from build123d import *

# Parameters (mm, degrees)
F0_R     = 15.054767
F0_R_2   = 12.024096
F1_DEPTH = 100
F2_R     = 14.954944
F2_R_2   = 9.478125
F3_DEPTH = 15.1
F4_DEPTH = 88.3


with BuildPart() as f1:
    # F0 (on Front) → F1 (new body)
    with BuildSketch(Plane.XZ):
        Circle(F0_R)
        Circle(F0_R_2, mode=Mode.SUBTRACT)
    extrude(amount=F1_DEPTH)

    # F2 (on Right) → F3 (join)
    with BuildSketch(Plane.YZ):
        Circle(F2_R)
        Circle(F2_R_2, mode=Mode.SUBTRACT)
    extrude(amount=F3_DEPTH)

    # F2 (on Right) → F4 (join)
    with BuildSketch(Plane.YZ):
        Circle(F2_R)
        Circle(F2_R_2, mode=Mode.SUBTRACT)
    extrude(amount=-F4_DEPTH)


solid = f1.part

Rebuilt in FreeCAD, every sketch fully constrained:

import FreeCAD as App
import Part
import Sketcher

V = App.Vector

doc = App.newDocument("Part")
params = doc.addObject("Spreadsheet::Sheet", "Params")
for row, (alias, value) in enumerate([
    ("pad1_length", "100 mm"),
    ("pad2_length", "15.1 mm"),
    ("pad3_length", "88.3 mm"),
], start=1):
    params.set(f"A{row}", alias)
    params.set(f"B{row}", "=" + value)
    params.setAlias(f"B{row}", alias)

body = doc.addObject("PartDesign::Body", "Body")

# Sketch on XZ plane
sketch1 = doc.addObject("Sketcher::SketchObject", "Sketch")
body.addObject(sketch1)
sketch1.AttachmentSupport = (doc.XZ_Plane, [""])
sketch1.MapMode = "FlatFace"
sketch1.addGeometry(Part.Circle(V(0, 0, 0), V(0, 0, 1), 15), False)
sketch1.addGeometry(Part.Circle(V(0, 0, 0), V(0, 0, 1), 12), False)
sketch1.addConstraint(Sketcher.Constraint("Coincident", 0, 3, -1, 1))
sketch1.addConstraint(Sketcher.Constraint("Coincident", 1, 3, -1, 1))
sketch1.addConstraint(Sketcher.Constraint("Diameter", 1, 24.048192))
sketch1.addConstraint(Sketcher.Constraint("Diameter", 0, 30.109534))
pad1 = doc.addObject("PartDesign::Pad", "Pad")
body.addObject(pad1)
pad1.Profile = sketch1
pad1.setExpression("Length", "Params.pad1_length")

# Sketch on YZ plane
sketch2 = doc.addObject("Sketcher::SketchObject", "Sketch001")
body.addObject(sketch2)
sketch2.AttachmentSupport = (doc.YZ_Plane, [""])
sketch2.MapMode = "FlatFace"
sketch2.addGeometry(Part.Circle(V(0, 0, 0), V(0, 0, 1), 15), False)
sketch2.addGeometry(Part.Circle(V(0, 0, 0), V(0, 0, 1), 9), False)
sketch2.addConstraint(Sketcher.Constraint("Coincident", 0, 3, -1, 1))
sketch2.addConstraint(Sketcher.Constraint("Coincident", 1, 3, -1, 1))
sketch2.addConstraint(Sketcher.Constraint("Diameter", 1, 18.95625))
sketch2.addConstraint(Sketcher.Constraint("Diameter", 0, 29.909888))
pad2 = doc.addObject("PartDesign::Pad", "Pad001")
body.addObject(pad2)
pad2.Profile = sketch2
pad2.setExpression("Length", "Params.pad2_length")

# Sketch on YZ plane
sketch3 = doc.addObject("Sketcher::SketchObject", "Sketch002")
body.addObject(sketch3)
sketch3.AttachmentSupport = (doc.YZ_Plane, [""])
sketch3.MapMode = "FlatFace"
sketch3.addGeometry(Part.Circle(V(0, 0, 0), V(0, 0, 1), 15), False)
sketch3.addGeometry(Part.Circle(V(0, 0, 0), V(0, 0, 1), 9), False)
sketch3.addConstraint(Sketcher.Constraint("Coincident", 0, 3, -1, 1))
sketch3.addConstraint(Sketcher.Constraint("Coincident", 1, 3, -1, 1))
sketch3.addConstraint(Sketcher.Constraint("Diameter", 1, 18.95625))
sketch3.addConstraint(Sketcher.Constraint("Diameter", 0, 29.909888))
pad3 = doc.addObject("PartDesign::Pad", "Pad002")
body.addObject(pad3)
pad3.Profile = sketch3
pad3.setExpression("Length", "Params.pad3_length")
pad3.Reversed = True

doc.recompute()
